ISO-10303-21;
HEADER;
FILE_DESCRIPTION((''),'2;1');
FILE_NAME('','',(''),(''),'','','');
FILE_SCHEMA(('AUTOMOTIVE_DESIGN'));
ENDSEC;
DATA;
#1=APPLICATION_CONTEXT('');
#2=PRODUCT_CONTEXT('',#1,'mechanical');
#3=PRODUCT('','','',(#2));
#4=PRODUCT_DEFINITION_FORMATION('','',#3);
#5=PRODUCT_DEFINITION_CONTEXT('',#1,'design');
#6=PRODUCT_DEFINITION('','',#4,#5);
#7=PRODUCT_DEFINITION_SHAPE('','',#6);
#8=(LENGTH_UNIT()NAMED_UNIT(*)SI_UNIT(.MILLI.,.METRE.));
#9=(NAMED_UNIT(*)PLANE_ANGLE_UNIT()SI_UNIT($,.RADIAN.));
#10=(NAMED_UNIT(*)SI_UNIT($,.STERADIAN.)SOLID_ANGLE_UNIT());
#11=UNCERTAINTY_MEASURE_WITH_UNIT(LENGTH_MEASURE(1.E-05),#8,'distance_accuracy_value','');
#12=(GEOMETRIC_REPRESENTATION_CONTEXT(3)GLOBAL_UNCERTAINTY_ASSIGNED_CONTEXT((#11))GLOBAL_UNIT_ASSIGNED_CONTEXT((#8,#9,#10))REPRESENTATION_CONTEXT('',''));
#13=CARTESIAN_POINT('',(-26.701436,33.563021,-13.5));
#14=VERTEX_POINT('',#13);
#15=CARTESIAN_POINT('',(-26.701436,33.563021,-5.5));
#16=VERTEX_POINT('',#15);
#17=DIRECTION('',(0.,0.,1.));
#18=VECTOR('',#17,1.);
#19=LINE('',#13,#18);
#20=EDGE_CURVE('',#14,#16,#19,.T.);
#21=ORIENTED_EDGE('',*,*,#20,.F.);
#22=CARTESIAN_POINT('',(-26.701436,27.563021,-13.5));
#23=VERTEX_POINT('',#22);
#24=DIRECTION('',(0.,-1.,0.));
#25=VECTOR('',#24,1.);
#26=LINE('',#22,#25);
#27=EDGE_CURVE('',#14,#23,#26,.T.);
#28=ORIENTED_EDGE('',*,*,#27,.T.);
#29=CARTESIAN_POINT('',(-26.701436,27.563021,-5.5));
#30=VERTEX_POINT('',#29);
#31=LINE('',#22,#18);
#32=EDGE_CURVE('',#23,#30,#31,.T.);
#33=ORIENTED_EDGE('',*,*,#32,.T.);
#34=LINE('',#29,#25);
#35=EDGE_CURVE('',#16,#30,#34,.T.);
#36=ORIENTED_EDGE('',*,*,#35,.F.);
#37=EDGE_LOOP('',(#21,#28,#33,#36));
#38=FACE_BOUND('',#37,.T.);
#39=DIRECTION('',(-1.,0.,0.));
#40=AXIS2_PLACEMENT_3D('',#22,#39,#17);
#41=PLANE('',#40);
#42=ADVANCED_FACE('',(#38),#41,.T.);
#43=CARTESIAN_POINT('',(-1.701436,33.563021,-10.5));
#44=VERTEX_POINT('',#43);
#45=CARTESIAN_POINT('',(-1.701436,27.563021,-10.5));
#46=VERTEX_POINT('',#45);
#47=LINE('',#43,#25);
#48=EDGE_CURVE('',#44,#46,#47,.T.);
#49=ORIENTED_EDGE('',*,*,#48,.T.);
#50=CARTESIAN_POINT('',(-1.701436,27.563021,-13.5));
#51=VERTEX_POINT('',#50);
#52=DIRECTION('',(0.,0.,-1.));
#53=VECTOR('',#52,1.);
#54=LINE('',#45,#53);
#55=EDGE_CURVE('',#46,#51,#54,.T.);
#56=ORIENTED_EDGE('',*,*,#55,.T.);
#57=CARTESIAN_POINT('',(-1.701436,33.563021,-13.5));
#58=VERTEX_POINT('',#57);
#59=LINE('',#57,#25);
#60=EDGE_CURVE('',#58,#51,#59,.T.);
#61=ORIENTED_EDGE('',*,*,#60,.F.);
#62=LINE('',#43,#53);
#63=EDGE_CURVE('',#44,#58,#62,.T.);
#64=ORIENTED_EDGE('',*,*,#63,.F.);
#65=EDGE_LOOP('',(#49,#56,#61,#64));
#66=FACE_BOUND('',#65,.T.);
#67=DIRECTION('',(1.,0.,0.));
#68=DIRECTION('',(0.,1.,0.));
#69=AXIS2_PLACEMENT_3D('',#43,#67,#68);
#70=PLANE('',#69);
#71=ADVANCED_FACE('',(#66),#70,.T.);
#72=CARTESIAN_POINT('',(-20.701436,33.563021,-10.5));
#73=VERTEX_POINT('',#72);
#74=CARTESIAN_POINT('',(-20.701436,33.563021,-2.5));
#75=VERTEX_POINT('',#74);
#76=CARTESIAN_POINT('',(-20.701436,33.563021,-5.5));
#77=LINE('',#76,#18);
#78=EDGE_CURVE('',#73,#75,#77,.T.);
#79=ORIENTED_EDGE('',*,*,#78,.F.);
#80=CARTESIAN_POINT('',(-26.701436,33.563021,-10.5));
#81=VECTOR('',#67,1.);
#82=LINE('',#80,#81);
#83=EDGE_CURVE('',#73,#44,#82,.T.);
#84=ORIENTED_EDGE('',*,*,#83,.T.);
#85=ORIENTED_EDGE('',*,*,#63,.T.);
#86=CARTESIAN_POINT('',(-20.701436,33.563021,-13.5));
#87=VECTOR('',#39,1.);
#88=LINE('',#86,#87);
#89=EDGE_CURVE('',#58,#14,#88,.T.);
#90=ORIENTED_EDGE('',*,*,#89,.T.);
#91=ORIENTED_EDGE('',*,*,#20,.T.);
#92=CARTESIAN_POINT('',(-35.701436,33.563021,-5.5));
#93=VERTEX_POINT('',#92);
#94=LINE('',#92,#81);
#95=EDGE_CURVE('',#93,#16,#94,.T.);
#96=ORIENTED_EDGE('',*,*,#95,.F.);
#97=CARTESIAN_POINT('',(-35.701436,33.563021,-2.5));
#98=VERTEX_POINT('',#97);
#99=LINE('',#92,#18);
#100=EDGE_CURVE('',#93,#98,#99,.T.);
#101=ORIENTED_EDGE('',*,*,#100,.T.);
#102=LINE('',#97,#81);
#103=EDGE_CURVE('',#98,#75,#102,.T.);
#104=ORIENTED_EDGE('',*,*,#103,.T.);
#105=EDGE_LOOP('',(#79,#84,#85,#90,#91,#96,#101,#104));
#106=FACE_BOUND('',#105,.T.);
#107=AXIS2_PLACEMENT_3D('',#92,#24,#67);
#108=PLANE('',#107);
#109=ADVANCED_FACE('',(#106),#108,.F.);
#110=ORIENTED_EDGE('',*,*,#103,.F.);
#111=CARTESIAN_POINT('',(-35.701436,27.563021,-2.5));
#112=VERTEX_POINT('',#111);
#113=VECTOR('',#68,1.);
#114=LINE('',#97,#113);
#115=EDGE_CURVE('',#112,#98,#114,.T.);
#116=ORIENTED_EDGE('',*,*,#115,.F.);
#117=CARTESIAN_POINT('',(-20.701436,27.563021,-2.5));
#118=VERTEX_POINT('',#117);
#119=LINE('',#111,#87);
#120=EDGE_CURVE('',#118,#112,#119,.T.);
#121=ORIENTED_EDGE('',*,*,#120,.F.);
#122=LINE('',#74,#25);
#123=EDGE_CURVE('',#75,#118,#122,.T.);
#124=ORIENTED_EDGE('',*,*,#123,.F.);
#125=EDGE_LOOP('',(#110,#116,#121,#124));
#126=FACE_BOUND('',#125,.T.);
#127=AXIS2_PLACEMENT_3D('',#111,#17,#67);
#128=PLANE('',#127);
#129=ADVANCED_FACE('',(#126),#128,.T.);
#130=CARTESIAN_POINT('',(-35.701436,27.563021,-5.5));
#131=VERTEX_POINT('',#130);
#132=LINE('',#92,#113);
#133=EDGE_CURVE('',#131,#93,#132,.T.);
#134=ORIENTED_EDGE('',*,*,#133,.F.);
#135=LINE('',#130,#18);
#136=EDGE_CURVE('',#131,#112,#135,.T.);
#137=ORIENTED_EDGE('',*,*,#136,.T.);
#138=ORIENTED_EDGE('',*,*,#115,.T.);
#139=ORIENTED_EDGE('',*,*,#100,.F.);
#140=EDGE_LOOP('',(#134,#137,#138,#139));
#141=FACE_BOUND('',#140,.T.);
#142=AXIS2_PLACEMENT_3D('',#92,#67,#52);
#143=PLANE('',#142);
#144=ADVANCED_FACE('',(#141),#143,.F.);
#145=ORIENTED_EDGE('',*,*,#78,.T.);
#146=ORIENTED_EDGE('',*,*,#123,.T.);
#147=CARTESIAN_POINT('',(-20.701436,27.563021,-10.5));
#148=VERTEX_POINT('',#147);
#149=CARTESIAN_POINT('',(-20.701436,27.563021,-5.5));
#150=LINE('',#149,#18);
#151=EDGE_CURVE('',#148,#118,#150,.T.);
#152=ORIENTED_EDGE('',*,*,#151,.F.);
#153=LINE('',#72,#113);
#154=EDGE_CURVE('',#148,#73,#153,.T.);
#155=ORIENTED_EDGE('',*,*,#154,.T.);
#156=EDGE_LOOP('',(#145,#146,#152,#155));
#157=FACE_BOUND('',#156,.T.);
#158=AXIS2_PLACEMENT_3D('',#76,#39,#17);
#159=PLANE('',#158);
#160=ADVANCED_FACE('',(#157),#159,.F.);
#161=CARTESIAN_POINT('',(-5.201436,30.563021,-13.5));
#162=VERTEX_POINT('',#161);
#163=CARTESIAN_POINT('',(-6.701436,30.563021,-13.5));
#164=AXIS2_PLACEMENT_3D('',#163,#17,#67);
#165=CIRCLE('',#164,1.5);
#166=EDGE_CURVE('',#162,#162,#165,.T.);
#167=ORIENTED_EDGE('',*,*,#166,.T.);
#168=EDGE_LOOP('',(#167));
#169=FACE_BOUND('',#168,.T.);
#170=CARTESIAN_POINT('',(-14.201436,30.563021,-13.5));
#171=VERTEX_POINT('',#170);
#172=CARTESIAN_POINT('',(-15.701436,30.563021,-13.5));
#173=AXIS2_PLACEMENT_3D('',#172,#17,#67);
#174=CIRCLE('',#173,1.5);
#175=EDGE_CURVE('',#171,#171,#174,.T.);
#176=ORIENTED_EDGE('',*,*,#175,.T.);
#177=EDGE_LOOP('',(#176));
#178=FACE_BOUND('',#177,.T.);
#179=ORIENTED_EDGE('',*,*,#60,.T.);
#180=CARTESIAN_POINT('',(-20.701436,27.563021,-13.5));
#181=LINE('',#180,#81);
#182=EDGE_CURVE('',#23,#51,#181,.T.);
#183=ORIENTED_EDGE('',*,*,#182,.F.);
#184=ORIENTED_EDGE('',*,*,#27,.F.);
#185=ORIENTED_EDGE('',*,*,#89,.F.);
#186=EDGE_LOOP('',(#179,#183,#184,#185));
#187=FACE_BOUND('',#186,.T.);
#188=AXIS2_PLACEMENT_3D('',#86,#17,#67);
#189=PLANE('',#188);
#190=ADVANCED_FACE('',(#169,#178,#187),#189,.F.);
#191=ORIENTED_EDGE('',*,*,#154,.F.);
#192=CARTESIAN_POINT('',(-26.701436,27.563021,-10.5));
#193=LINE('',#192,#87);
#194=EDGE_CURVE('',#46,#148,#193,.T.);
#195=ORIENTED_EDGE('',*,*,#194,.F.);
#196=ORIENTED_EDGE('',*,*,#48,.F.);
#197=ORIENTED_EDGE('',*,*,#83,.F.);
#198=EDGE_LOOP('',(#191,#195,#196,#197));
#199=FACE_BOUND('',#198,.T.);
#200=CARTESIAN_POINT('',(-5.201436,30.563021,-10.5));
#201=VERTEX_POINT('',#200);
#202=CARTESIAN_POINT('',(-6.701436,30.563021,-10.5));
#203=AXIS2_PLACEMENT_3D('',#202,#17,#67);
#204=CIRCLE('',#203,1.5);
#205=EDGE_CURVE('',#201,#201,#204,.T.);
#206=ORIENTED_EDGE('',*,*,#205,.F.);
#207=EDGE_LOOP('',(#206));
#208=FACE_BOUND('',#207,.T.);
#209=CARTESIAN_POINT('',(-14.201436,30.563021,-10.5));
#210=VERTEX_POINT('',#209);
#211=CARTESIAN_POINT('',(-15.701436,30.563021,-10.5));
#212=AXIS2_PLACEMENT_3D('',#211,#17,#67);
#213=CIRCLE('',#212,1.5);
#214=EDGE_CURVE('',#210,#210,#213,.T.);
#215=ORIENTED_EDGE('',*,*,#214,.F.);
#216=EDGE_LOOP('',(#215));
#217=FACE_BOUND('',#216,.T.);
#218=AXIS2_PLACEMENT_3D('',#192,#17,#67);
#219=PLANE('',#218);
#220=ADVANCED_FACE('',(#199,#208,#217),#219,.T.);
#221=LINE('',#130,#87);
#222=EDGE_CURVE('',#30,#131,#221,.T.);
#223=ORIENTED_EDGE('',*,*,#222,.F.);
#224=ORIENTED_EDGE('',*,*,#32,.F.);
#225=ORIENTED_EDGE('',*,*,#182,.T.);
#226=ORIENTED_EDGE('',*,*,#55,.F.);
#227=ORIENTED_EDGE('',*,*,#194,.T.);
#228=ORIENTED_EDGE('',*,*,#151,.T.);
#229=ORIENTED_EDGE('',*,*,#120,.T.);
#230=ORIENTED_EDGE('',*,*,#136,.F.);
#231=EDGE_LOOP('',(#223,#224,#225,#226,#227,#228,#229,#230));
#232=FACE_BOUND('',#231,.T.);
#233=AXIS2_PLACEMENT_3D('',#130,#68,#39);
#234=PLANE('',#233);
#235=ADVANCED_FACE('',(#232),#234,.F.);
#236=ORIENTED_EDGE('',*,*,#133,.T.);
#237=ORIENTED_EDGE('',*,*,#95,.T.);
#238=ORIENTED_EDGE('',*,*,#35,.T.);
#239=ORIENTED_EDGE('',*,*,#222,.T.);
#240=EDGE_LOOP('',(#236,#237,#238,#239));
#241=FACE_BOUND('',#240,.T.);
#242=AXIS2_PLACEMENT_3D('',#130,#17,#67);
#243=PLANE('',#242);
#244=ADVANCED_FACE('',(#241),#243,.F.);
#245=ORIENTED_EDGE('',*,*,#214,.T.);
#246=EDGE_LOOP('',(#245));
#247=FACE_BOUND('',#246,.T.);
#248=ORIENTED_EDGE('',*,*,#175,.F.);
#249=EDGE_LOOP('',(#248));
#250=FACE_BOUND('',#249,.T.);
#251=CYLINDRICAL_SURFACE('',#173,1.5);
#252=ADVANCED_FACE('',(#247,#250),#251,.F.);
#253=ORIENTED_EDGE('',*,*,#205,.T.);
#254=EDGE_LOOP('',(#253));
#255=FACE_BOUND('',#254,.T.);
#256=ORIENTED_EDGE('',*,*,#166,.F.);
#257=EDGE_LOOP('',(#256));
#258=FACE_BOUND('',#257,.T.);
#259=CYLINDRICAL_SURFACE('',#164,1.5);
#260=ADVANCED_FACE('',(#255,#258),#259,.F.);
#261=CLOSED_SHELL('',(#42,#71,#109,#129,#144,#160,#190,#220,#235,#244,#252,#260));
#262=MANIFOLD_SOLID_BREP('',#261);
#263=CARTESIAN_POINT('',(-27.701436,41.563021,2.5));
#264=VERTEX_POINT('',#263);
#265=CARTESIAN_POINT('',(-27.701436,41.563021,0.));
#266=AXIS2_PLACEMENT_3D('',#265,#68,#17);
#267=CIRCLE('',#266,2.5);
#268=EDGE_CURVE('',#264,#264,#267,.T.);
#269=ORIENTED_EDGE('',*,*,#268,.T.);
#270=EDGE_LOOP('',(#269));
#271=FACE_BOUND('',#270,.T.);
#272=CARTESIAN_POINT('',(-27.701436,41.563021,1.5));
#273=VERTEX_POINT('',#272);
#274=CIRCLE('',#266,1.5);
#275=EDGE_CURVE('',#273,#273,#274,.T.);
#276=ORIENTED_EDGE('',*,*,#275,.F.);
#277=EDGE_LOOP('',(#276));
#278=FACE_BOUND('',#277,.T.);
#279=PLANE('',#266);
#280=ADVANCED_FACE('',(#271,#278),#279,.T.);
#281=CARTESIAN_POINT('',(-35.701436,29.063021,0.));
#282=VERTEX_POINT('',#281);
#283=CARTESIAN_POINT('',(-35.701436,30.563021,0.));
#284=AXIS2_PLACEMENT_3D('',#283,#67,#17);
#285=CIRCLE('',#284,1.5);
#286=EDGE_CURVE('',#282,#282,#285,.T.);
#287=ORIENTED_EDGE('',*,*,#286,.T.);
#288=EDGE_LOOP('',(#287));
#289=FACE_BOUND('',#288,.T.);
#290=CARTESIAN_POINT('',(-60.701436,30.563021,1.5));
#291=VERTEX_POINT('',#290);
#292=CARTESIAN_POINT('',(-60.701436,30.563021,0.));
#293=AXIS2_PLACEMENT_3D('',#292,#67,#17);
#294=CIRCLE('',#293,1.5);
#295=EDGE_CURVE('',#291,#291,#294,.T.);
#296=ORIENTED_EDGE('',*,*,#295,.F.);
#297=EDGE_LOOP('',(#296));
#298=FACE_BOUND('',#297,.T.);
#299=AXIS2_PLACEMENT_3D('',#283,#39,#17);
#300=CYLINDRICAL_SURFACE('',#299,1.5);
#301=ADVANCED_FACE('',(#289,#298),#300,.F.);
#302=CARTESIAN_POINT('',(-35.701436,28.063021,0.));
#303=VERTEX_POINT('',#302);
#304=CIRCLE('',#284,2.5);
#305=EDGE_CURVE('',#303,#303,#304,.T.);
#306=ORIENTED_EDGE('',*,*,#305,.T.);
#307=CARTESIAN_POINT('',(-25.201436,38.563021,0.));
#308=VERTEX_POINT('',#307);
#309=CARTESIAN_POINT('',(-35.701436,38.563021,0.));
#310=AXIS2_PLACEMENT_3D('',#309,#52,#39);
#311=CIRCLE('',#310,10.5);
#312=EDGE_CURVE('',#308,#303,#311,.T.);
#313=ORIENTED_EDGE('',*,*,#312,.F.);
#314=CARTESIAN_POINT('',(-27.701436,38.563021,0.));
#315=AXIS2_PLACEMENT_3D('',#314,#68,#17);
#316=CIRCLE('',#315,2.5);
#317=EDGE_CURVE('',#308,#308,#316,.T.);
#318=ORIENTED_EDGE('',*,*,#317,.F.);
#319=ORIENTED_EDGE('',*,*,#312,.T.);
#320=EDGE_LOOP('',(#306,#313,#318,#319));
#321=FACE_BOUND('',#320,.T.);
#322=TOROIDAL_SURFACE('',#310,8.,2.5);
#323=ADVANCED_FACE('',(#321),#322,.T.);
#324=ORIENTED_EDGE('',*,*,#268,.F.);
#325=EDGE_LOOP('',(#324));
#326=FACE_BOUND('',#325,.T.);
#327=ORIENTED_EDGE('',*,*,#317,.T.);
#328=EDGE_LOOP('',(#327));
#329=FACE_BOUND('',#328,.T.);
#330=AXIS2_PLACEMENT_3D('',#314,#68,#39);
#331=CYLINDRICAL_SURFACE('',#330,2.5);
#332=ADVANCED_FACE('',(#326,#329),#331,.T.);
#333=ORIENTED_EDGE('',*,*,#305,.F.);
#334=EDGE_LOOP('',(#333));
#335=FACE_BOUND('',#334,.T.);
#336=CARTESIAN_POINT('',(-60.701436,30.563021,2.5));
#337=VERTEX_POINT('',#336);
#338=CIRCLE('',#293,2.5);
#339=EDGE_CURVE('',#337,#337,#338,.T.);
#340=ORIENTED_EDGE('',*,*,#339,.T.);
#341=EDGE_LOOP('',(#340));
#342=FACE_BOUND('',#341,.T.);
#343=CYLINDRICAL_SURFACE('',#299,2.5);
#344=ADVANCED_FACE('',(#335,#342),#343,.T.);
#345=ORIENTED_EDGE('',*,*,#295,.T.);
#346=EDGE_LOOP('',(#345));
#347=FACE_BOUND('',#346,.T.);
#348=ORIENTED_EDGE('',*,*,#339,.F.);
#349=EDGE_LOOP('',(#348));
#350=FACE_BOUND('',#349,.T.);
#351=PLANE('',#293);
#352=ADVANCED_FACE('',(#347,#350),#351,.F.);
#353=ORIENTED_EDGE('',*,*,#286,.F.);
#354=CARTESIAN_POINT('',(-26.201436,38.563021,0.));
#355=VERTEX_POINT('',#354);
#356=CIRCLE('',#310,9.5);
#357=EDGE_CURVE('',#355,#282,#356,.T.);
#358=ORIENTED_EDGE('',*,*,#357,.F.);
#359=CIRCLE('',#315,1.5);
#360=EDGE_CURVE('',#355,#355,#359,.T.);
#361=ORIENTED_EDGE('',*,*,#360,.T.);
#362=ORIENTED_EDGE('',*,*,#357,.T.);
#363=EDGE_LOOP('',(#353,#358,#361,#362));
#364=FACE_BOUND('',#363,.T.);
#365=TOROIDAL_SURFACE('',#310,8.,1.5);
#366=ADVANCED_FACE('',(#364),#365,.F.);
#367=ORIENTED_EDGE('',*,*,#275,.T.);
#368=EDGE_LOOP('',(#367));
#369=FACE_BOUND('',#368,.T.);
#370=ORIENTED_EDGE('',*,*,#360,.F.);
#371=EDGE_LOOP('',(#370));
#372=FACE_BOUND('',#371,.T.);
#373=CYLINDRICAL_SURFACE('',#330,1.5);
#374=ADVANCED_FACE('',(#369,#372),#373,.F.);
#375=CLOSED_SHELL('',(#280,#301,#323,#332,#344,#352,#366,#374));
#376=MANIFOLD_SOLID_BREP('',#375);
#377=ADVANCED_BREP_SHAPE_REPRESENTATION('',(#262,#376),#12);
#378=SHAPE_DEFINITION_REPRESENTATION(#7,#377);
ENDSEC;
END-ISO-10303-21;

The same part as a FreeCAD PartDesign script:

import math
import FreeCAD as App
import Part
import Sketcher


def add_polygon(sketch, points):
    """Adds a closed chain of lines whose ends are joined by coincident constraints."""
    first, n = sketch.GeometryCount, len(points)
    for a, b in zip(points, points[1:] + points[:1]):
        sketch.addGeometry(Part.LineSegment(App.Vector(*a, 0), App.Vector(*b, 0)), False)
    for i in range(n):
        sketch.addConstraint(Sketcher.Constraint("Coincident", first + i, 2, first + (i + 1) % n, 1))

doc = App.newDocument("Part")
body = doc.addObject("PartDesign::Body", "Body")

# Sketch on XZ plane
sketch1 = doc.addObject("Sketcher::SketchObject", "Sketch")
body.addObject(sketch1)
sketch1.AttachmentSupport = (doc.XZ_Plane, [""])
sketch1.MapMode = "FlatFace"
sketch1.AttachmentOffset = App.Placement(App.Vector(0, 0, -41.563021), App.Rotation())
sketch1.addGeometry(Part.Circle(App.Vector(-27.7, 0, 0), App.Vector(0, 0, 1), 2.5), False)
sketch1.addGeometry(Part.Circle(App.Vector(-27.7, 0, 0), App.Vector(0, 0, 1), 1.5), False)
sketch1.addConstraint(Sketcher.Constraint("Coincident", 1, 3, 0, 3))
sketch1.addConstraint(Sketcher.Constraint("PointOnObject", 0, 3, -1))
sketch1.addConstraint(Sketcher.Constraint("Diameter", 0, 5.0))
sketch1.addConstraint(Sketcher.Constraint("Diameter", 1, 3.0))
sketch1.addConstraint(Sketcher.Constraint("DistanceX", 0, 3, -1, 1, 27.701436))

# Sketch on XY plane
sketch2 = doc.addObject("Sketcher::SketchObject", "Sketch001")
body.addObject(sketch2)
sketch2.AttachmentSupport = (doc.XY_Plane, [""])
sketch2.MapMode = "FlatFace"
sketch2.addGeometry(Part.LineSegment(App.Vector(-60.7, 30.6, 0), App.Vector(-35.7, 30.6, 0)), False)
sketch2.addGeometry(Part.ArcOfCircle(Part.Circle(App.Vector(-35.7, 38.6, 0), App.Vector(0, 0, 1), 8), math.radians(-90), math.radians(0)), False)
sketch2.addGeometry(Part.LineSegment(App.Vector(-27.7, 38.6, 0), App.Vector(-27.7, 41.6, 0)), False)
sketch2.addConstraint(Sketcher.Constraint("Tangent", 0, 2, 1, 1))
sketch2.addConstraint(Sketcher.Constraint("Tangent", 1, 2, 2, 1))
sketch2.addConstraint(Sketcher.Constraint("Horizontal", 0))
sketch2.addConstraint(Sketcher.Constraint("Vertical", 2))
sketch2.addConstraint(Sketcher.Constraint("Radius", 1, 8.0))
sketch2.addConstraint(Sketcher.Constraint("DistanceX", 0, 1, 0, 2, 25.0))
sketch2.addConstraint(Sketcher.Constraint("DistanceY", 2, 1, 2, 2, 3.0))
sketch2.addConstraint(Sketcher.Constraint("DistanceY", -1, 1, 1, 3, 38.563021))
sketch2.addConstraint(Sketcher.Constraint("DistanceX", 1, 3, -1, 1, 35.701436))
doc.recompute()

additivepipe = doc.addObject("PartDesign::AdditivePipe", "AdditivePipe")
body.addObject(additivepipe)
additivepipe.Profile = sketch1
additivepipe.Spine = (sketch2, ["Edge1", "Edge2", "Edge3"])
body2 = doc.addObject("PartDesign::Body", "Body001")

# Sketch on XY plane
sketch3 = doc.addObject("Sketcher::SketchObject", "Sketch002")
body2.addObject(sketch3)
sketch3.AttachmentSupport = (doc.getObject("XY_Plane001"), [""])
sketch3.MapMode = "FlatFace"
sketch3.AttachmentOffset = App.Placement(App.Vector(0, 0, -2.5), App.Rotation())
add_polygon(sketch3, [(-21, 34), (-21, 28), (-36, 28), (-36, 34)])  # lines 0-3
sketch3.addConstraint(Sketcher.Constraint("Vertical", 0))
sketch3.addConstraint(Sketcher.Constraint("Horizontal", 1))
sketch3.addConstraint(Sketcher.Constraint("Vertical", 2))
sketch3.addConstraint(Sketcher.Constraint("Horizontal", 3))
sketch3.addConstraint(Sketcher.Constraint("DistanceX", 1, 2, 1, 1, 15.0))
sketch3.addConstraint(Sketcher.Constraint("DistanceY", 0, 2, 0, 1, 6.0))
sketch3.addConstraint(Sketcher.Constraint("DistanceY", -1, 1, 0, 2, 27.563021))
sketch3.addConstraint(Sketcher.Constraint("DistanceX", 0, 2, -1, 1, 20.701436))
pad1 = doc.addObject("PartDesign::Pad", "Pad")
body2.addObject(pad1)
pad1.Profile = sketch3
pad1.Length = 3
pad1.Reversed = True

# Sketch on XY plane
sketch4 = doc.addObject("Sketcher::SketchObject", "Sketch003")
body2.addObject(sketch4)
sketch4.AttachmentSupport = (doc.getObject("XY_Plane001"), [""])
sketch4.MapMode = "FlatFace"
sketch4.AttachmentOffset = App.Placement(App.Vector(0, 0, -2.5), App.Rotation())
add_polygon(sketch4, [(-27, 34), (-27, 28), (-21, 28), (-21, 34)])  # lines 0-3
sketch4.addConstraint(Sketcher.Constraint("Vertical", 0))
sketch4.addConstraint(Sketcher.Constraint("Horizontal", 1))
sketch4.addConstraint(Sketcher.Constraint("Vertical", 2))
sketch4.addConstraint(Sketcher.Constraint("Horizontal", 3))
sketch4.addConstraint(Sketcher.Constraint("Equal", 3, 0))
sketch4.addConstraint(Sketcher.Constraint("DistanceX", 1, 1, 1, 2, 6.0))
sketch4.addConstraint(Sketcher.Constraint("DistanceY", -1, 1, 0, 2, 27.563021))
sketch4.addConstraint(Sketcher.Constraint("DistanceX", 0, 2, -1, 1, 26.701436))
pad2 = doc.addObject("PartDesign::Pad", "Pad001")
body2.addObject(pad2)
pad2.Profile = sketch4
pad2.Length = 11
pad2.Reversed = True

# Sketch on XY plane
sketch5 = doc.addObject("Sketcher::SketchObject", "Sketch004")
body2.addObject(sketch5)
sketch5.AttachmentSupport = (doc.getObject("XY_Plane001"), [""])
sketch5.MapMode = "FlatFace"
sketch5.AttachmentOffset = App.Placement(App.Vector(0, 0, -13.5), App.Rotation())
add_polygon(sketch5, [(-2, 34), (-2, 28), (-27, 28), (-27, 34)])  # lines 0-3
sketch5.addConstraint(Sketcher.Constraint("Vertical", 0))
sketch5.addConstraint(Sketcher.Constraint("Horizontal", 1))
sketch5.addConstraint(Sketcher.Constraint("Vertical", 2))
sketch5.addConstraint(Sketcher.Constraint("Horizontal", 3))
sketch5.addConstraint(Sketcher.Constraint("DistanceX", 1, 2, 1, 1, 25.0))
sketch5.addConstraint(Sketcher.Constraint("DistanceY", 0, 2, 0, 1, 6.0))
sketch5.addConstraint(Sketcher.Constraint("DistanceY", -1, 1, 0, 2, 27.563021))
sketch5.addConstraint(Sketcher.Constraint("DistanceX", 0, 2, -1, 1, 1.701436))
pad3 = doc.addObject("PartDesign::Pad", "Pad002")
body2.addObject(pad3)
pad3.Profile = sketch5
pad3.Length = 3

# Sketch on XY plane
sketch6 = doc.addObject("Sketcher::SketchObject", "Sketch005")
body2.addObject(sketch6)
sketch6.AttachmentSupport = (doc.getObject("XY_Plane001"), [""])
sketch6.MapMode = "FlatFace"
sketch6.AttachmentOffset = App.Placement(App.Vector(0, 0, -10.5), App.Rotation())
sketch6.addGeometry(Part.Circle(App.Vector(-15.7, 30.6, 0), App.Vector(0, 0, 1), 1.5), False)
sketch6.addGeometry(Part.Circle(App.Vector(-6.7, 30.6, 0), App.Vector(0, 0, 1), 1.5), False)
sketch6.addConstraint(Sketcher.Constraint("Equal", 0, 1))
sketch6.addConstraint(Sketcher.Constraint("Horizontal", 0, 3, 1, 3))
sketch6.addConstraint(Sketcher.Constraint("Diameter", 0, 3.0))
sketch6.addConstraint(Sketcher.Constraint("DistanceX", 0, 3, 1, 3, 9.0))
sketch6.addConstraint(Sketcher.Constraint("DistanceY", -1, 1, 0, 3, 30.563021))
sketch6.addConstraint(Sketcher.Constraint("DistanceX", 0, 3, -1, 1, 15.701436))
pocket1 = doc.addObject("PartDesign::Pocket", "Pocket")
body2.addObject(pocket1)
pocket1.Profile = sketch6
pocket1.Type = "ThroughAll"

doc.recompute()
